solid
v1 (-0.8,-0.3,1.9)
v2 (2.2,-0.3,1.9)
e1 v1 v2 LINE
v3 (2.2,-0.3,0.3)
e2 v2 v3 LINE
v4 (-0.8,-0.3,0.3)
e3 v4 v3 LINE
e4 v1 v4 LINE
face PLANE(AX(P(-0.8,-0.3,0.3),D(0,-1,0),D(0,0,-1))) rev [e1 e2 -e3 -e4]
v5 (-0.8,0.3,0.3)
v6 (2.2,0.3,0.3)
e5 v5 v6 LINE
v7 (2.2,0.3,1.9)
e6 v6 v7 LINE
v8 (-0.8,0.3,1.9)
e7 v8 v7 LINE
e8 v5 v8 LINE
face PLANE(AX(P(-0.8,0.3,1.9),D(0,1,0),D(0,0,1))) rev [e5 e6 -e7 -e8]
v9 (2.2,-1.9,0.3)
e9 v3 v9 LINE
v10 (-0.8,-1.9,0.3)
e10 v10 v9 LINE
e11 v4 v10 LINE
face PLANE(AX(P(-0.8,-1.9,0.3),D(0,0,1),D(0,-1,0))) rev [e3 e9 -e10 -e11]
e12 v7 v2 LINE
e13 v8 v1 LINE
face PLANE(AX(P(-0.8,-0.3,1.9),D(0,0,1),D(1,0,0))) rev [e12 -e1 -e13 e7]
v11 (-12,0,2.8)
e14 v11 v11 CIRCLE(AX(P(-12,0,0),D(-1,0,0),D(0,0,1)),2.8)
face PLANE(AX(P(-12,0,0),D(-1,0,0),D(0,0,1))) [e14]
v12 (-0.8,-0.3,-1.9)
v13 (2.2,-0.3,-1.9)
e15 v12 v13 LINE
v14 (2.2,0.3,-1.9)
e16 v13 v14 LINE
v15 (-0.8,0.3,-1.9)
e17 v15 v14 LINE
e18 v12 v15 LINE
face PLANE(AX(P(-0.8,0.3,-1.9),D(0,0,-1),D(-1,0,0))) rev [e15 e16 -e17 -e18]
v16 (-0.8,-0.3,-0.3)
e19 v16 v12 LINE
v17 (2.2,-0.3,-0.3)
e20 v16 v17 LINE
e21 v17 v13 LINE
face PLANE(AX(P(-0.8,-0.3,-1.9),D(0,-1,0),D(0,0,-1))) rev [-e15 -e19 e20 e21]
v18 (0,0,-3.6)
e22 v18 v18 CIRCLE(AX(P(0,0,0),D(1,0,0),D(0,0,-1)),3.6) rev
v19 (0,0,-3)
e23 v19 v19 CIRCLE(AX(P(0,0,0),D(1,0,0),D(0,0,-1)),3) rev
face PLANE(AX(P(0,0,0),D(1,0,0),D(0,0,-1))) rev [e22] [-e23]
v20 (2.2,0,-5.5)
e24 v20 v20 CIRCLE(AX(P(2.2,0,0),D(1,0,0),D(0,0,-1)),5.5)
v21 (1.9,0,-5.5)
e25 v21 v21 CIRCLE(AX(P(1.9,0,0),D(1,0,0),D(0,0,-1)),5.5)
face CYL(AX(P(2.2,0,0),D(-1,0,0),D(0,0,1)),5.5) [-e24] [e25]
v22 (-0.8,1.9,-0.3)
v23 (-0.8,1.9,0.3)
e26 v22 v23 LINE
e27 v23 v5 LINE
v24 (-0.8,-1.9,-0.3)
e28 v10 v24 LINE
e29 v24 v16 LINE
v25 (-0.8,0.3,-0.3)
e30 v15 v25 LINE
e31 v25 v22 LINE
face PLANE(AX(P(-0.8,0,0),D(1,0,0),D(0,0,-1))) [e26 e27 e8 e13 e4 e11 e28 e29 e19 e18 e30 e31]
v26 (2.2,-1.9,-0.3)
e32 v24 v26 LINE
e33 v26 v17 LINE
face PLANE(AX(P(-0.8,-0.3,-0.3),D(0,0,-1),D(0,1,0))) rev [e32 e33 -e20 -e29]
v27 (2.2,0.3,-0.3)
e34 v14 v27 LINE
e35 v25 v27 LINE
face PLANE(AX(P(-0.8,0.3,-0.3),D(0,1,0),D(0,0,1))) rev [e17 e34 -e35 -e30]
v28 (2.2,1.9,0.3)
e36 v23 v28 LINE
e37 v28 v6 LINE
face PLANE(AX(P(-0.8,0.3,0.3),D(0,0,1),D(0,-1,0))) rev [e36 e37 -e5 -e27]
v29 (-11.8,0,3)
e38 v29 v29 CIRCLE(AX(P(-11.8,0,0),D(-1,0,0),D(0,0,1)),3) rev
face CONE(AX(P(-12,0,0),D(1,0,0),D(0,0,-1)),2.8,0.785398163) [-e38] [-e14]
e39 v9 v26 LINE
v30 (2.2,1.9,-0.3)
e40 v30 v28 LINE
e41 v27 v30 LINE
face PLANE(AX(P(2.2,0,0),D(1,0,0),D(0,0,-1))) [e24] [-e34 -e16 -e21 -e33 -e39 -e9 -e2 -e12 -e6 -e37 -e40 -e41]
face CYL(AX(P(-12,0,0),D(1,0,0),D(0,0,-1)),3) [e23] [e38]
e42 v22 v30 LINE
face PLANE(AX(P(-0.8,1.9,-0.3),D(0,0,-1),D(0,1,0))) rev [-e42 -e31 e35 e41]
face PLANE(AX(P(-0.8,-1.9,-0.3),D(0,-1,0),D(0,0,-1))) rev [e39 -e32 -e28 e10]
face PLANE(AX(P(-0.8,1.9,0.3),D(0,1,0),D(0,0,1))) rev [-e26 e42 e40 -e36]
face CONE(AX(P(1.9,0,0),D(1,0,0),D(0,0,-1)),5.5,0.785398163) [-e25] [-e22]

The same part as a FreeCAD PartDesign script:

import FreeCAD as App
import Part
import Sketcher

V = App.Vector


def edges_at(feature, points):
    """Names of the edges that pass closest to the given points."""
    edges = feature.Shape.Edges
    near = lambda p: min(range(len(edges)), key=lambda i: edges[i].distToShape(Part.Vertex(*p))[0])
    return sorted({f"Edge{near(p) + 1}" for p in points})

doc = App.newDocument("Part")
body = doc.addObject("PartDesign::Body", "Body")

sketch1 = body.newObject("Sketcher::SketchObject", "Sketch")
sketch1.AttachmentSupport = (doc.getObject("YZ_Plane"), [""])
sketch1.MapMode = "FlatFace"
sketch1.addGeometry(Part.Circle(V(0, 0, 0), V(0, 0, 1), 6), False)
sketch1.addConstraint(Sketcher.Constraint("Coincident", 0, 3, -1, 1))
sketch1.addConstraint(Sketcher.Constraint("Diameter", 0, 11.0))
pad1 = body.newObject("PartDesign::Pad", "Pad")
pad1.Profile = sketch1
pad1.Length = 2.2

sketch2 = body.newObject("Sketcher::SketchObject", "Sketch001")
sketch2.AttachmentSupport = (doc.getObject("YZ_Plane"), [""])
sketch2.MapMode = "FlatFace"
sketch2.addGeometry(Part.Circle(V(0, 0, 0), V(0, 0, 1), 3), False)
sketch2.addConstraint(Sketcher.Constraint("Coincident", 0, 3, -1, 1))
sketch2.addConstraint(Sketcher.Constraint("Diameter", 0, 6.0))
pad2 = body.newObject("PartDesign::Pad", "Pad001")
pad2.Profile = sketch2
pad2.Length = 12
pad2.Reversed = True
doc.recompute()

chamfer = body.newObject("PartDesign::Chamfer", "Chamfer")
chamfer.Base = (pad2, edges_at(pad2, [(-12, 0, -3)]))
chamfer.Size = 0.2
doc.recompute()

chamfer2 = body.newObject("PartDesign::Chamfer", "Chamfer001")
chamfer2.Base = (chamfer, edges_at(chamfer, [(0, 0, 5.5)]))
chamfer2.Size = 1.9

sketch3 = body.newObject("Sketcher::SketchObject", "Sketch002")
sketch3.AttachmentSupport = (doc.getObject("YZ_Plane"), [""])
sketch3.MapMode = "FlatFace"
sketch3.AttachmentOffset = App.Placement(V(0, 0, 2.2), App.Rotation())
sketch3.addGeometry(Part.LineSegment(V(0.3, -1.9, 0), V(0.3, -0.3, 0)), False)
sketch3.addGeometry(Part.LineSegment(V(0.3, -0.3, 0), V(1.9, -0.3, 0)), False)
sketch3.addGeometry(Part.LineSegment(V(1.9, -0.3, 0), V(1.9, 0.3, 0)), False)
sketch3.addGeometry(Part.LineSegment(V(1.9, 0.3, 0), V(0.3, 0.3, 0)), False)
sketch3.addGeometry(Part.LineSegment(V(0.3, 0.3, 0), V(0.3, 1.9, 0)), False)
sketch3.addGeometry(Part.LineSegment(V(0.3, 1.9, 0), V(-0.3, 1.9, 0)), False)
sketch3.addGeometry(Part.LineSegment(V(-0.3, 1.9, 0), V(-0.3, 0.3, 0)), False)
sketch3.addGeometry(Part.LineSegment(V(-0.3, 0.3, 0), V(-1.9, 0.3, 0)), False)
sketch3.addGeometry(Part.LineSegment(V(-1.9, 0.3, 0), V(-1.9, -0.3, 0)), False)
sketch3.addGeometry(Part.LineSegment(V(-1.9, -0.3, 0), V(-0.3, -0.3, 0)), False)
sketch3.addGeometry(Part.LineSegment(V(-0.3, -0.3, 0), V(-0.3, -1.9, 0)), False)
sketch3.addGeometry(Part.LineSegment(V(-0.3, -1.9, 0), V(0.3, -1.9, 0)), False)
sketch3.addConstraint(Sketcher.Constraint("Coincident", 0, 2, 1, 1))
sketch3.addConstraint(Sketcher.Constraint("Coincident", 1, 2, 2, 1))
sketch3.addConstraint(Sketcher.Constraint("Coincident", 2, 2, 3, 1))
sketch3.addConstraint(Sketcher.Constraint("Coincident", 3, 2, 4, 1))
sketch3.addConstraint(Sketcher.Constraint("Coincident", 4, 2, 5, 1))
sketch3.addConstraint(Sketcher.Constraint("Coincident", 5, 2, 6, 1))
sketch3.addConstraint(Sketcher.Constraint("Coincident", 6, 2, 7, 1))
sketch3.addConstraint(Sketcher.Constraint("Coincident", 7, 2, 8, 1))
sketch3.addConstraint(Sketcher.Constraint("Coincident", 8, 2, 9, 1))
sketch3.addConstraint(Sketcher.Constraint("Coincident", 9, 2, 10, 1))
sketch3.addConstraint(Sketcher.Constraint("Coincident", 10, 2, 11, 1))
sketch3.addConstraint(Sketcher.Constraint("Coincident", 11, 2, 0, 1))
sketch3.addConstraint(Sketcher.Constraint("Vertical", 0))
sketch3.addConstraint(Sketcher.Constraint("Horizontal", 1))
sketch3.addConstraint(Sketcher.Constraint("Vertical", 2))
sketch3.addConstraint(Sketcher.Constraint("Horizontal", 3))
sketch3.addConstraint(Sketcher.Constraint("Vertical", 4))
sketch3.addConstraint(Sketcher.Constraint("Horizontal", 5))
sketch3.addConstraint(Sketcher.Constraint("Vertical", 6))
sketch3.addConstraint(Sketcher.Constraint("Horizontal", 7))
sketch3.addConstraint(Sketcher.Constraint("Vertical", 8))
sketch3.addConstraint(Sketcher.Constraint("Horizontal", 9))
sketch3.addConstraint(Sketcher.Constraint("Vertical", 10))
sketch3.addConstraint(Sketcher.Constraint("Horizontal", 11))
sketch3.addConstraint(Sketcher.Constraint("Symmetric", 0, 2, 6, 2, -1, 1))
sketch3.addConstraint(Sketcher.Constraint("Symmetric", 2, 2, 8, 2, -1, 1))
sketch3.addConstraint(Sketcher.Constraint("Symmetric", 4, 2, 10, 2, -1, 1))
sketch3.addConstraint(Sketcher.Constraint("Symmetric", 3, 2, 6, 2, -2))
sketch3.addConstraint(Sketcher.Constraint("Equal", 9, 0))
sketch3.addConstraint(Sketcher.Constraint("Equal", 11, 2))
sketch3.addConstraint(Sketcher.Constraint("DistanceX", 1, 1, 1, 2, 1.6))
sketch3.addConstraint(Sketcher.Constraint("DistanceX", 5, 2, 5, 1, 0.6))
pocket1 = body.newObject("PartDesign::Pocket", "Pocket")
pocket1.Profile = sketch3
pocket1.Length = 3

doc.recompute()
